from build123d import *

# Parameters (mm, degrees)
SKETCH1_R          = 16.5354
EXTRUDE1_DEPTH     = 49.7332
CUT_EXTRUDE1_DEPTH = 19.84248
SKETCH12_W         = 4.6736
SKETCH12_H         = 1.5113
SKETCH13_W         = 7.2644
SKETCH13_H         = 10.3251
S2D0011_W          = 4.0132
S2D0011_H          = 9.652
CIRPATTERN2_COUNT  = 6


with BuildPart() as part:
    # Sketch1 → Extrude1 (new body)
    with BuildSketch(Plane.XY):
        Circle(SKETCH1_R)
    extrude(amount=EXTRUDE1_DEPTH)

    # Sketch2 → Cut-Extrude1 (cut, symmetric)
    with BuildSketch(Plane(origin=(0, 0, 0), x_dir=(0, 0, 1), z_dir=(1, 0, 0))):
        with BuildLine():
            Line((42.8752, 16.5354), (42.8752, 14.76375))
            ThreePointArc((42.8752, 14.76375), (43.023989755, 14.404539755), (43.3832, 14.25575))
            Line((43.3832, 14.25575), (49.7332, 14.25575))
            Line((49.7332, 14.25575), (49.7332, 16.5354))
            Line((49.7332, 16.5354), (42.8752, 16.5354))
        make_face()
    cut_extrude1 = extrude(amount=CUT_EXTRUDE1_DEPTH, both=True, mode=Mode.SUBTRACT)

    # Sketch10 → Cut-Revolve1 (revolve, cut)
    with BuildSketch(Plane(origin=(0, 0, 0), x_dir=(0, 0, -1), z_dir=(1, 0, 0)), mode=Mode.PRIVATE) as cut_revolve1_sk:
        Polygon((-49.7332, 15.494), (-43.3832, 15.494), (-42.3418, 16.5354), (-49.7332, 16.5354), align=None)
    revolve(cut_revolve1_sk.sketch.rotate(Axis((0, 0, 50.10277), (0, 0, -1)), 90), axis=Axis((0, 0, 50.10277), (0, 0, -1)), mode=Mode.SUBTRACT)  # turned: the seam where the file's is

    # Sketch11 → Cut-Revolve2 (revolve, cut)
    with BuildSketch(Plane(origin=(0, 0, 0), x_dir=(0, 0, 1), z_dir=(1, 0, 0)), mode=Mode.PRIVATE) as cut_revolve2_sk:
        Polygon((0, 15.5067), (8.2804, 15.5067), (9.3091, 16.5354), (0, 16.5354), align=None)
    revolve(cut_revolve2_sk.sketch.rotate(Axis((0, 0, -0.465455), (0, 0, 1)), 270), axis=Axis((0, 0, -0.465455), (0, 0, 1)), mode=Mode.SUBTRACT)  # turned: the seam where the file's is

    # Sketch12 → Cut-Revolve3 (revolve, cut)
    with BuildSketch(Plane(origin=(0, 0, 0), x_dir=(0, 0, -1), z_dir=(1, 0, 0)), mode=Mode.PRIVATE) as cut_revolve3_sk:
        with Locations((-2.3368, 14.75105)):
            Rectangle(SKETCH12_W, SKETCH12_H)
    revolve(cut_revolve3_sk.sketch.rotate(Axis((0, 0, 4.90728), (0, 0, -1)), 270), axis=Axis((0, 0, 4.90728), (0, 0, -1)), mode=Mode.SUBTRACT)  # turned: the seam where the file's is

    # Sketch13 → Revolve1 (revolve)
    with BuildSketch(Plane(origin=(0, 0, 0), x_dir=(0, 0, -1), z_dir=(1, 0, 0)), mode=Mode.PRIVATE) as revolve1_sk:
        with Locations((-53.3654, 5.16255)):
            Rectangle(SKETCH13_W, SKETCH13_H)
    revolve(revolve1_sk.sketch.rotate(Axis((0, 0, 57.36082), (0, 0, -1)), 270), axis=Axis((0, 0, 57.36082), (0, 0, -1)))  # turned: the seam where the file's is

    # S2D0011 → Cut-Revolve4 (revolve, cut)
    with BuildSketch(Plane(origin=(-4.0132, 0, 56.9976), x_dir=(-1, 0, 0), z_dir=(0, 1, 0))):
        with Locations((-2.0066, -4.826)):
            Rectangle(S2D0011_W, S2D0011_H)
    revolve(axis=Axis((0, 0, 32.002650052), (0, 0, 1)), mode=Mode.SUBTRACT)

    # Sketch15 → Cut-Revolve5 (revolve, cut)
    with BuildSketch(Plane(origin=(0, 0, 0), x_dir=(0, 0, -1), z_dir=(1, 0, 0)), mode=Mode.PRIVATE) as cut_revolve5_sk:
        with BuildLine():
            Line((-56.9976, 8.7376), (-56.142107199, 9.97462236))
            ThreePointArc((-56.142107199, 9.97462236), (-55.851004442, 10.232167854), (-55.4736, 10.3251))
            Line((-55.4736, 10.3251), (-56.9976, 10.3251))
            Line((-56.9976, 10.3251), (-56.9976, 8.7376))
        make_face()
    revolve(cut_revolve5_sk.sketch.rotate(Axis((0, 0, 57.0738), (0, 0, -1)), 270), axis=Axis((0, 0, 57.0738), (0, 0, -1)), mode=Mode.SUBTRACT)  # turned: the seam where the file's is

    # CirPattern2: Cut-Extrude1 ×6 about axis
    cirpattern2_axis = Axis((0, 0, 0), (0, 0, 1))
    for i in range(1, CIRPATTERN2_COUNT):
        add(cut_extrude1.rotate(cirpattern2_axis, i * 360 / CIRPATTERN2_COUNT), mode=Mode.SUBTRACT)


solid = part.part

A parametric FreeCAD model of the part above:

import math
import FreeCAD as App
import Part
import Sketcher
from FreeCAD import Vector
Q = App.Units.Quantity

doc = App.newDocument("Part")
body = doc.addObject("PartDesign::Body", "Body")

# Sketch on XY plane
sketch1 = body.newObject("Sketcher::SketchObject", "Sketch")
sketch1.AttachmentSupport = (doc.getObject("XY_Plane"), [""])
sketch1.MapMode = "FlatFace"
sketch1.addGeometry(Part.Circle(Vector(0, 0, 0), Vector(0, 0, 1), 17), False)
sketch1.addConstraint([
    Sketcher.Constraint("Coincident", 0, 3, -1, 1),
    Sketcher.Constraint("Diameter", 0, Q("1.302 in")),
])
pad1 = body.newObject("PartDesign::Pad", "Pad")
pad1.Profile = sketch1
pad1.Length = Q("1.958 in")

# Sketch on YZ plane
sketch2 = body.newObject("Sketcher::SketchObject", "Sketch001")
sketch2.AttachmentSupport = (doc.getObject("YZ_Plane"), [""])
sketch2.MapMode = "FlatFace"
sketch2.addGeometry([
    Part.LineSegment(Vector(-16.5, 42.9, 0), Vector(-14.8, 42.9, 0)),  # 0
    Part.ArcOfCircle(Part.Circle(Vector(-14.8, 43.4, 0), Vector(0, 0, 1), 0.5), math.radians(-90), math.radians(0)),  # 1
    Part.LineSegment(Vector(-14.3, 43.4, 0), Vector(-14.3, 49.7, 0)),  # 2
    Part.LineSegment(Vector(-14.3, 49.7, 0), Vector(-16.5, 49.7, 0)),  # 3
    Part.LineSegment(Vector(-16.5, 49.7, 0), Vector(-16.5, 42.9, 0)),  # 4
], False)
sketch2.addConstraint([
    Sketcher.Constraint("Tangent", 0, 2, 1, 1),
    Sketcher.Constraint("Tangent", 1, 2, 2, 1),
    Sketcher.Constraint("Coincident", 2, 2, 3, 1),
    Sketcher.Constraint("Coincident", 3, 2, 4, 1),
    Sketcher.Constraint("Coincident", 4, 2, 0, 1),
    Sketcher.Constraint("Horizontal", 0),
    Sketcher.Constraint("Vertical", 2),
    Sketcher.Constraint("Horizontal", 3),
    Sketcher.Constraint("Vertical", 4),
    Sketcher.Constraint("Radius", 1, Q("0.02 in")),
    Sketcher.Constraint("DistanceY", 2, 1, 2, 2, Q("0.25 in")),
    Sketcher.Constraint("DistanceY", -1, 1, 1, 3, Q("1.708 in")),
    Sketcher.Constraint("DistanceX", 3, 2, -1, 1, Q("0.651 in")),
    Sketcher.Constraint("DistanceX", 0, 1, 0, 2, Q("1.77165 mm")),
])
pocket1 = body.newObject("PartDesign::Pocket", "Pocket")
pocket1.Profile = sketch2
pocket1.Length = Q("1.5624 in")
pocket1.Midplane = True

# Sketch on YZ plane
sketch3 = body.newObject("Sketcher::SketchObject", "Sketch002")
sketch3.AttachmentSupport = (doc.getObject("YZ_Plane"), [""])
sketch3.MapMode = "FlatFace"
sketch3.addGeometry([
    Part.LineSegment(Vector(15.5, 49.7, 0), Vector(15.5, 43.4, 0)),
    Part.LineSegment(Vector(15.5, 43.4, 0), Vector(16.5, 42.3, 0)),
    Part.LineSegment(Vector(16.5, 42.3, 0), Vector(16.5, 49.7, 0)),
    Part.LineSegment(Vector(16.5, 49.7, 0), Vector(15.5, 49.7, 0)),
], False)
sketch3.addConstraint([
    Sketcher.Constraint("Coincident", 0, 2, 1, 1),
    Sketcher.Constraint("Coincident", 1, 2, 2, 1),
    Sketcher.Constraint("Coincident", 2, 2, 3, 1),
    Sketcher.Constraint("Coincident", 3, 2, 0, 1),
    Sketcher.Constraint("Vertical", 0),
    Sketcher.Constraint("Vertical", 2),
    Sketcher.Constraint("Horizontal", 3),
    Sketcher.Constraint("Angle", 1, Q("-45 deg")),
    Sketcher.Constraint("DistanceY", 0, 2, 0, 1, Q("0.25 in")),
    Sketcher.Constraint("DistanceX", 3, 2, 3, 1, Q("0.041 in")),
    Sketcher.Constraint("DistanceX", -1, 1, 0, 2, Q("0.61 in")),
    Sketcher.Constraint("DistanceY", -1, 1, 0, 2, Q("1.708 in")),
])
groove = body.newObject("PartDesign::Groove", "Groove")
groove.Profile = sketch3
groove.ReferenceAxis = (sketch3, ["V_Axis"])
groove.Angle = 360

# Sketch on YZ plane
sketch4 = body.newObject("Sketcher::SketchObject", "Sketch003")
sketch4.AttachmentSupport = (doc.getObject("YZ_Plane"), [""])
sketch4.MapMode = "FlatFace"
sketch4.addGeometry([
    Part.LineSegment(Vector(-15.5, 0, 0), Vector(-15.5, 8.3, 0)),
    Part.LineSegment(Vector(-15.5, 8.3, 0), Vector(-16.5, 9.3, 0)),
    Part.LineSegment(Vector(-16.5, 9.3, 0), Vector(-16.5, 0, 0)),
    Part.LineSegment(Vector(-16.5, 0, 0), Vector(-15.5, 0, 0)),
], False)
sketch4.addConstraint([
    Sketcher.Constraint("Coincident", 0, 2, 1, 1),
    Sketcher.Constraint("Coincident", 1, 2, 2, 1),
    Sketcher.Constraint("Coincident", 2, 2, 3, 1),
    Sketcher.Constraint("Coincident", 3, 2, 0, 1),
    Sketcher.Constraint("Vertical", 0),
    Sketcher.Constraint("Vertical", 2),
    Sketcher.Constraint("Horizontal", 3),
    Sketcher.Constraint("PointOnObject", 2, 2, -1),
    Sketcher.Constraint("Angle", 1, Q("135 deg")),
    Sketcher.Constraint("DistanceY", 0, 1, 0, 2, Q("0.326 in")),
    Sketcher.Constraint("DistanceX", 3, 1, 3, 2, Q("0.0405 in")),
    Sketcher.Constraint("DistanceX", 1, 2, -1, 1, Q("0.651 in")),
])
groove2 = body.newObject("PartDesign::Groove", "Groove001")
groove2.Profile = sketch4
groove2.ReferenceAxis = (sketch4, ["V_Axis"])
groove2.Angle = 360

# Sketch on YZ plane
sketch5 = body.newObject("Sketcher::SketchObject", "Sketch004")
sketch5.AttachmentSupport = (doc.getObject("YZ_Plane"), [""])
sketch5.MapMode = "FlatFace"
sketch5.addGeometry([
    Part.LineSegment(Vector(15.5, 4.7, 0), Vector(14, 4.7, 0)),
    Part.LineSegment(Vector(14, 4.7, 0), Vector(14, 0, 0)),
    Part.LineSegment(Vector(14, 0, 0), Vector(15.5, 0, 0)),
    Part.LineSegment(Vector(15.5, 0, 0), Vector(15.5, 4.7, 0)),
], False)
sketch5.addConstraint([
    Sketcher.Constraint("Coincident", 0, 2, 1, 1),
    Sketcher.Constraint("Coincident", 1, 2, 2, 1),
    Sketcher.Constraint("Coincident", 2, 2, 3, 1),
    Sketcher.Constraint("Coincident", 3, 2, 0, 1),
    Sketcher.Constraint("Horizontal", 0),
    Sketcher.Constraint("Vertical", 1),
    Sketcher.Constraint("Horizontal", 2),
    Sketcher.Constraint("Vertical", 3),
    Sketcher.Constraint("PointOnObject", 1, 2, -1),
    Sketcher.Constraint("DistanceY", 1, 2, 1, 1, Q("0.184 in")),
    Sketcher.Constraint("DistanceX", 0, 2, 0, 1, Q("0.0595 in")),
    Sketcher.Constraint("DistanceX", -1, 1, 0, 2, Q("0.551 in")),
])
groove3 = body.newObject("PartDesign::Groove", "Groove002")
groove3.Profile = sketch5
groove3.ReferenceAxis = (sketch5, ["V_Axis"])
groove3.Angle = 360

# Sketch on YZ plane
sketch6 = body.newObject("Sketcher::SketchObject", "Sketch005")
sketch6.AttachmentSupport = (doc.getObject("YZ_Plane"), [""])
sketch6.MapMode = "FlatFace"
sketch6.addGeometry([
    Part.LineSegment(Vector(10, 57, 0), Vector(0, 57, 0)),
    Part.LineSegment(Vector(0, 57, 0), Vector(0, 50, 0)),
    Part.LineSegment(Vector(0, 50, 0), Vector(10, 50, 0)),
    Part.LineSegment(Vector(10, 50, 0), Vector(10, 57, 0)),
], False)
sketch6.addConstraint([
    Sketcher.Constraint("Coincident", 0, 2, 1, 1),
    Sketcher.Constraint("Coincident", 1, 2, 2, 1),
    Sketcher.Constraint("Coincident", 2, 2, 3, 1),
    Sketcher.Constraint("Coincident", 3, 2, 0, 1),
    Sketcher.Constraint("Horizontal", 0),
    Sketcher.Constraint("Vertical", 1),
    Sketcher.Constraint("Horizontal", 2),
    Sketcher.Constraint("Vertical", 3),
    Sketcher.Constraint("PointOnObject", 0, 2, -2),
    Sketcher.Constraint("DistanceY", 1, 2, 1, 1, Q("0.286 in")),
    Sketcher.Constraint("DistanceX", 0, 2, 0, 1, Q("0.4065 in")),
    Sketcher.Constraint("DistanceY", -1, 1, 0, 2, Q("2.244 in")),
])
revolution = body.newObject("PartDesign::Revolution", "Revolution")
revolution.Profile = sketch6
revolution.ReferenceAxis = (sketch6, ["V_Axis"])
revolution.Angle = 360

# Sketch on XZ plane
sketch7 = body.newObject("Sketcher::SketchObject", "Sketch006")
sketch7.AttachmentSupport = (doc.getObject("XZ_Plane"), [""])
sketch7.MapMode = "FlatFace"
sketch7.addGeometry([
    Part.LineSegment(Vector(0, 57, 0), Vector(0, 47.3, 0)),
    Part.LineSegment(Vector(0, 47.3, 0), Vector(-4, 47.3, 0)),
    Part.LineSegment(Vector(-4, 47.3, 0), Vector(-4, 57, 0)),
    Part.LineSegment(Vector(-4, 57, 0), Vector(0, 57, 0)),
], False)
sketch7.addConstraint([
    Sketcher.Constraint("Coincident", 0, 2, 1, 1),
    Sketcher.Constraint("Coincident", 1, 2, 2, 1),
    Sketcher.Constraint("Coincident", 2, 2, 3, 1),
    Sketcher.Constraint("Coincident", 3, 2, 0, 1),
    Sketcher.Constraint("Vertical", 0),
    Sketcher.Constraint("Horizontal", 1),
    Sketcher.Constraint("Vertical", 2),
    Sketcher.Constraint("Horizontal", 3),
    Sketcher.Constraint("PointOnObject", 0, 2, -2),
    Sketcher.Constraint("DistanceY", 0, 2, 0, 1, Q("0.38 in")),
    Sketcher.Constraint("DistanceX", 1, 2, 1, 1, Q("0.158 in")),
    Sketcher.Constraint("DistanceY", -1, 1, 0, 2, Q("1.864 in")),
])
groove4 = body.newObject("PartDesign::Groove", "Groove003")
groove4.Profile = sketch7
groove4.ReferenceAxis = (sketch7, ["V_Axis"])
groove4.Angle = 360

# Sketch on YZ plane
sketch8 = body.newObject("Sketcher::SketchObject", "Sketch007")
sketch8.AttachmentSupport = (doc.getObject("YZ_Plane"), [""])
sketch8.MapMode = "FlatFace"
sketch8.addGeometry([
    Part.LineSegment(Vector(8.7, 57, 0), Vector(10, 56.1, 0)),
    Part.ArcOfCircle(Part.Circle(Vector(9.5, 55.5, 0), Vector(0, 0, 1), 0.8), math.radians(0), math.radians(55)),
    Part.LineSegment(Vector(10.3, 55.5, 0), Vector(10.3, 57, 0)),
    Part.LineSegment(Vector(10.3, 57, 0), Vector(8.7, 57, 0)),
], False)
sketch8.addConstraint([
    Sketcher.Constraint("Tangent", 0, 2, 1, 2),
    Sketcher.Constraint("Tangent", 1, 1, 2, 1),
    Sketcher.Constraint("Coincident", 2, 2, 3, 1),
    Sketcher.Constraint("Coincident", 3, 2, 0, 1),
    Sketcher.Constraint("Vertical", 2),
    Sketcher.Constraint("Horizontal", 3),
    Sketcher.Constraint("Radius", 1, Q("0.032 in")),
    Sketcher.Constraint("DistanceY", 2, 1, 2, 2, Q("0.06 in")),
    Sketcher.Constraint("DistanceX", 3, 2, 3, 1, Q("0.0625 in")),
    Sketcher.Constraint("DistanceY", -1, 1, 1, 3, Q("2.184 in")),
    Sketcher.Constraint("DistanceX", -1, 1, 3, 2, Q("0.344 in")),
])
groove5 = body.newObject("PartDesign::Groove", "Groove004")
groove5.Profile = sketch8
groove5.ReferenceAxis = (sketch8, ["V_Axis"])
groove5.Angle = 360
doc.recompute()

polarpattern = body.newObject("PartDesign::PolarPattern", "PolarPattern")
polarpattern.Originals = [pocket1]
polarpattern.Axis = (doc.getObject("Z_Axis"), [""])
polarpattern.Angle = 360
polarpattern.Occurrences = 6
body.Tip = polarpattern

doc.recompute()
